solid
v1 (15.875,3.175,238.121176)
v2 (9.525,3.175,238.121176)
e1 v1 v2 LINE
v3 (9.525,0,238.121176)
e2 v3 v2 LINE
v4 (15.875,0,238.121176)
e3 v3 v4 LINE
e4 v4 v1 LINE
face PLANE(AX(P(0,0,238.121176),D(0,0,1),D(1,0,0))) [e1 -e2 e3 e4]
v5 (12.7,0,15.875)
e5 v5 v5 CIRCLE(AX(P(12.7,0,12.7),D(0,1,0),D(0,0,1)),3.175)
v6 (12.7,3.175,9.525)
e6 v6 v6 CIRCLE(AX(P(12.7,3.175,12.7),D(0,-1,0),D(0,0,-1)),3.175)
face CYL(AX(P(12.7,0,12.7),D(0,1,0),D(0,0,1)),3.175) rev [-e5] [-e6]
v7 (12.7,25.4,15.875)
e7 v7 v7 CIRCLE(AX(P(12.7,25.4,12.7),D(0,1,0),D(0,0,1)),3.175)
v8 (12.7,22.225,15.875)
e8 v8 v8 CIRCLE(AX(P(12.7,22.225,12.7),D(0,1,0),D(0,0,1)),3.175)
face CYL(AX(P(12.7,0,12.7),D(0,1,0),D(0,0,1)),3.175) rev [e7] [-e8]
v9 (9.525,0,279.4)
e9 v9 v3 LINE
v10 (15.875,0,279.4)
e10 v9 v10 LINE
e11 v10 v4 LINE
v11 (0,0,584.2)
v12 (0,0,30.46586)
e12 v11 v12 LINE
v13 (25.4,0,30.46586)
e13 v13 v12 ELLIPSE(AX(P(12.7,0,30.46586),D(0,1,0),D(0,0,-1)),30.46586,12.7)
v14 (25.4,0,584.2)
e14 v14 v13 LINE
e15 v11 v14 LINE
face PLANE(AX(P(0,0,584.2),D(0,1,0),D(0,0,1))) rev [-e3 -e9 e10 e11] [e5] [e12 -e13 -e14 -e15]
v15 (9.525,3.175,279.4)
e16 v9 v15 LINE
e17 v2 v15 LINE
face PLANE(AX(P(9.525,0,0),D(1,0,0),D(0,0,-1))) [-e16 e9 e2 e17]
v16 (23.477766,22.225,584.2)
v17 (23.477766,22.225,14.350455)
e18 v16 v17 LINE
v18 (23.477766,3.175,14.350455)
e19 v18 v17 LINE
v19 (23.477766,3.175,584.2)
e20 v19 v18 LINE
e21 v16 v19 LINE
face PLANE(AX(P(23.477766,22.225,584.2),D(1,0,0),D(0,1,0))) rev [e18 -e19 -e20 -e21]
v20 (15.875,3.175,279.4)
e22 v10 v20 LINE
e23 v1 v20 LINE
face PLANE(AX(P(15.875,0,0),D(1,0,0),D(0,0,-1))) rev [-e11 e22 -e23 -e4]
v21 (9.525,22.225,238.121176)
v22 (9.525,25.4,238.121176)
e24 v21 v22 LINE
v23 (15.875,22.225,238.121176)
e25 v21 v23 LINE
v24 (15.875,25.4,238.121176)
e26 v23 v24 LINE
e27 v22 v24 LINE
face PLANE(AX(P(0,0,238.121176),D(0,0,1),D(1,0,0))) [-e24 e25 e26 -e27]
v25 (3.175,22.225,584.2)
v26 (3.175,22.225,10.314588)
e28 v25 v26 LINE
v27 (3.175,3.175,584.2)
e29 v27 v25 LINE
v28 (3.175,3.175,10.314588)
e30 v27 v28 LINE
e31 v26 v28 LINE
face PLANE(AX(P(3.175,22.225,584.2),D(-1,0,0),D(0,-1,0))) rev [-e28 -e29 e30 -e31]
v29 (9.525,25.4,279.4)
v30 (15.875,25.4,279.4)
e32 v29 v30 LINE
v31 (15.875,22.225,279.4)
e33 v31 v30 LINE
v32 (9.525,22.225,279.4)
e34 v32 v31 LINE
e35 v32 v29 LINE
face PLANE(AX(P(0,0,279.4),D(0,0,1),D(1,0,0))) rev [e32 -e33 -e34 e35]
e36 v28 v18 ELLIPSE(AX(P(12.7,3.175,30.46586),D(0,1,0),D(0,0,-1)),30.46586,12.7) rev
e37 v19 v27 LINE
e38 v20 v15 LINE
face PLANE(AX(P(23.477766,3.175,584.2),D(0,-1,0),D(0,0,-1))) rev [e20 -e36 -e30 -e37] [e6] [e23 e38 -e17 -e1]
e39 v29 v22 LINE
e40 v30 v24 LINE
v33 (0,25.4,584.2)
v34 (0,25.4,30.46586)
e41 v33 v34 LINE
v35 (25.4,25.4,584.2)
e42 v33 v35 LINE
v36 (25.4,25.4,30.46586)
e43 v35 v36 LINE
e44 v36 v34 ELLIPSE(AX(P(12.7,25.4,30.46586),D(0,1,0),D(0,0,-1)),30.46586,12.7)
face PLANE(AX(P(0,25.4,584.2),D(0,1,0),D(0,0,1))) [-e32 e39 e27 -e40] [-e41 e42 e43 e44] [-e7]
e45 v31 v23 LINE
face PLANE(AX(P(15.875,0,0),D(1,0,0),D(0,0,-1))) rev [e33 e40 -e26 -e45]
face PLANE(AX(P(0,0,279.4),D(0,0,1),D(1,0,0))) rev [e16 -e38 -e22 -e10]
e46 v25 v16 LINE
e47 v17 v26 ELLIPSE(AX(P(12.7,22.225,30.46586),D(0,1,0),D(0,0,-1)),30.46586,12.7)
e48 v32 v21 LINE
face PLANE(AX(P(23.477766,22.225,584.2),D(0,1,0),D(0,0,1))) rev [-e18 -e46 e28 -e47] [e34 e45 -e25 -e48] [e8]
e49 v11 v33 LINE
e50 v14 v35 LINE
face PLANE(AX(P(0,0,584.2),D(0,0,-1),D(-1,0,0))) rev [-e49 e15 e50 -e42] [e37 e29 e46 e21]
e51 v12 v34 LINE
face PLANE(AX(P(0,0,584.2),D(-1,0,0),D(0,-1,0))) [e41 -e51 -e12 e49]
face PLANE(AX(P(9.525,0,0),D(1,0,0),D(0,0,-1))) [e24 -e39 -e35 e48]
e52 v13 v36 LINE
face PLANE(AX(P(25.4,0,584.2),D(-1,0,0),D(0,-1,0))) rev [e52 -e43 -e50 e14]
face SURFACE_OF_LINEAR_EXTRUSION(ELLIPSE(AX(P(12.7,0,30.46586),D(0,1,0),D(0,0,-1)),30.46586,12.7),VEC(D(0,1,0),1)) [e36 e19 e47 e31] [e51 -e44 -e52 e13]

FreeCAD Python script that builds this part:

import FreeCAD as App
import Part
import Sketcher
from FreeCAD import Vector
Q = App.Units.Quantity

doc = App.newDocument("Part")
body = doc.addObject("PartDesign::Body", "Body")

# Sketch on XY plane
sketch1 = body.newObject("Sketcher::SketchObject", "Sketch")
sketch1.AttachmentSupport = (doc.getObject("XY_Plane"), [""])
sketch1.MapMode = "FlatFace"
sketch1.addGeometry(Part.LineSegment(Vector(0, 25, 0), Vector(0, 0, 0)), False)
sketch1.addGeometry(Part.LineSegment(Vector(0, 0, 0), Vector(25, 0, 0)), False)
sketch1.addGeometry(Part.LineSegment(Vector(25, 0, 0), Vector(25, 25, 0)), False)
sketch1.addGeometry(Part.LineSegment(Vector(25, 25, 0), Vector(0, 25, 0)), False)
sketch1.addConstraint(Sketcher.Constraint("Coincident", 0, 2, 1, 1))
sketch1.addConstraint(Sketcher.Constraint("Coincident", 1, 2, 2, 1))
sketch1.addConstraint(Sketcher.Constraint("Coincident", 2, 2, 3, 1))
sketch1.addConstraint(Sketcher.Constraint("Coincident", 3, 2, 0, 1))
sketch1.addConstraint(Sketcher.Constraint("Vertical", 0))
sketch1.addConstraint(Sketcher.Constraint("Horizontal", 1))
sketch1.addConstraint(Sketcher.Constraint("Vertical", 2))
sketch1.addConstraint(Sketcher.Constraint("Horizontal", 3))
sketch1.addConstraint(Sketcher.Constraint("Coincident", 0, 2, -1, 1))
sketch1.addConstraint(Sketcher.Constraint("Equal", 3, 0))
sketch1.addConstraint(Sketcher.Constraint("DistanceX", 1, 1, 1, 2, Q("1 in")))
pad1 = body.newObject("PartDesign::Pad", "Pad")
pad1.Profile = sketch1
pad1.Length = Q("23 in")

# Sketch on XY plane
sketch2 = body.newObject("Sketcher::SketchObject", "Sketch001")
sketch2.AttachmentSupport = (doc.getObject("XY_Plane"), [""])
sketch2.MapMode = "FlatFace"
sketch2.addGeometry(Part.LineSegment(Vector(23, 22, 0), Vector(23, 3, 0)), False)
sketch2.addGeometry(Part.LineSegment(Vector(23, 3, 0), Vector(3, 3, 0)), False)
sketch2.addGeometry(Part.LineSegment(Vector(3, 3, 0), Vector(3, 22, 0)), False)
sketch2.addGeometry(Part.LineSegment(Vector(3, 22, 0), Vector(23, 22, 0)), False)
sketch2.addConstraint(Sketcher.Constraint("Coincident", 0, 2, 1, 1))
sketch2.addConstraint(Sketcher.Constraint("Coincident", 1, 2, 2, 1))
sketch2.addConstraint(Sketcher.Constraint("Coincident", 2, 2, 3, 1))
sketch2.addConstraint(Sketcher.Constraint("Coincident", 3, 2, 0, 1))
sketch2.addConstraint(Sketcher.Constraint("Vertical", 0))
sketch2.addConstraint(Sketcher.Constraint("Horizontal", 1))
sketch2.addConstraint(Sketcher.Constraint("Vertical", 2))
sketch2.addConstraint(Sketcher.Constraint("Horizontal", 3))
sketch2.addConstraint(Sketcher.Constraint("DistanceY", 0, 2, 0, 1, Q("0.75 in")))
sketch2.addConstraint(Sketcher.Constraint("DistanceY", -1, 1, 0, 2, Q("0.125 in")))
sketch2.addConstraint(Sketcher.Constraint("DistanceX", -1, 1, 1, 2, Q("0.125 in")))
sketch2.addConstraint(Sketcher.Constraint("DistanceX", 1, 2, 1, 1, 20.302766))
pocket1 = body.newObject("PartDesign::Pocket", "Pocket")
pocket1.Profile = sketch2
pocket1.Type = "ThroughAll"
pocket1.Reversed = True

# Sketch on XZ plane
sketch3 = body.newObject("Sketcher::SketchObject", "Sketch002")
sketch3.AttachmentSupport = (doc.getObject("XZ_Plane"), [""])
sketch3.MapMode = "FlatFace"
sketch3.AttachmentOffset = App.Placement(Vector(0, 0, -1 * 25.4), App.Rotation())
sketch3.addGeometry(Part.BSplineCurve([Vector(12.7, 0, 0), Vector(0, 0, 0), Vector(0, 30.46586, 0)], [3, 3], [6.283185307, 7.853981634], False, 2, [1, 0.707106781, 1], False), False)
sketch3.addGeometry(Part.LineSegment(Vector(12.7, 0, 0), Vector(0, 0, 0)), False)
sketch3.addGeometry(Part.LineSegment(Vector(0, 0, 0), Vector(0, 30.46586, 0)), False)
sketch3.addGeometry(Part.LineSegment(Vector(25.4, 0, 0), Vector(12.7, 0, 0)), False)
sketch3.addGeometry(Part.BSplineCurve([Vector(25.4, 30.46586, 0), Vector(25.4, 0, 0), Vector(12.7, 0, 0)], [3, 3], [4.71238898, 6.283185307], False, 2, [1, 0.707106781, 1], False), False)
sketch3.addGeometry(Part.LineSegment(Vector(25.4, 30.46586, 0), Vector(25.4, 0, 0)), False)
sketch3.addConstraint(Sketcher.Constraint("Block", 0))
sketch3.addConstraint(Sketcher.Constraint("Block", 4))
sketch3.addConstraint(Sketcher.Constraint("Coincident", 0, 1, 1, 1))
sketch3.addConstraint(Sketcher.Constraint("Coincident", 1, 2, 2, 1))
sketch3.addConstraint(Sketcher.Constraint("Coincident", 2, 2, 0, 2))
sketch3.addConstraint(Sketcher.Constraint("Coincident", 3, 2, 4, 2))
sketch3.addConstraint(Sketcher.Constraint("Coincident", 4, 1, 5, 1))
sketch3.addConstraint(Sketcher.Constraint("Coincident", 5, 2, 3, 1))
sketch3.addConstraint(Sketcher.Constraint("Horizontal", 1))
sketch3.addConstraint(Sketcher.Constraint("Vertical", 2))
sketch3.addConstraint(Sketcher.Constraint("Horizontal", 3))
sketch3.addConstraint(Sketcher.Constraint("Vertical", 5))
pocket2 = body.newObject("PartDesign::Pocket", "Pocket001")
pocket2.Profile = sketch3
pocket2.Type = "ThroughAll"
pocket2.Reversed = True

# Sketch on XZ plane
sketch4 = body.newObject("Sketcher::SketchObject", "Sketch003")
sketch4.AttachmentSupport = (doc.getObject("XZ_Plane"), [""])
sketch4.MapMode = "FlatFace"
sketch4.AttachmentOffset = App.Placement(Vector(0, 0, -1 * 25.4), App.Rotation())
sketch4.addGeometry(Part.Circle(Vector(12.7, 12.7, 0), Vector(0, 0, 1), 3.2), False)
sketch4.addConstraint(Sketcher.Constraint("Diameter", 0, Q("0.25 in")))
sketch4.addConstraint(Sketcher.Constraint("DistanceX", -1, 1, 0, 3, Q("0.5 in")))
sketch4.addConstraint(Sketcher.Constraint("DistanceY", -1, 1, 0, 3, Q("0.5 in")))
pocket3 = body.newObject("PartDesign::Pocket", "Pocket002")
pocket3.Profile = sketch4
pocket3.Type = "ThroughAll"
pocket3.Reversed = True

# Sketch on XZ plane
sketch5 = body.newObject("Sketcher::SketchObject", "Sketch004")
sketch5.AttachmentSupport = (doc.getObject("XZ_Plane"), [""])
sketch5.MapMode = "FlatFace"
sketch5.AttachmentOffset = App.Placement(Vector(0, 0, -1 * 25.4), App.Rotation())
sketch5.addGeometry(Part.LineSegment(Vector(10, 238, 0), Vector(10, 279, 0)), False)
sketch5.addGeometry(Part.LineSegment(Vector(10, 279, 0), Vector(16, 279, 0)), False)
sketch5.addGeometry(Part.LineSegment(Vector(16, 279, 0), Vector(16, 238, 0)), False)
sketch5.addGeometry(Part.LineSegment(Vector(16, 238, 0), Vector(10, 238, 0)), False)
sketch5.addConstraint(Sketcher.Constraint("Coincident", 0, 2, 1, 1))
sketch5.addConstraint(Sketcher.Constraint("Coincident", 1, 2, 2, 1))
sketch5.addConstraint(Sketcher.Constraint("Coincident", 2, 2, 3, 1))
sketch5.addConstraint(Sketcher.Constraint("Coincident", 3, 2, 0, 1))
sketch5.addConstraint(Sketcher.Constraint("Vertical", 0))
sketch5.addConstraint(Sketcher.Constraint("Horizontal", 1))
sketch5.addConstraint(Sketcher.Constraint("Vertical", 2))
sketch5.addConstraint(Sketcher.Constraint("Horizontal", 3))
sketch5.addConstraint(Sketcher.Constraint("DistanceY", -1, 1, 0, 2, Q("11 in")))
sketch5.addConstraint(Sketcher.Constraint("DistanceX", 1, 1, 1, 2, Q("0.25 in")))
sketch5.addConstraint(Sketcher.Constraint("DistanceX", -1, 1, 0, 2, Q("0.375 in")))
sketch5.addConstraint(Sketcher.Constraint("DistanceY", 0, 1, 0, 2, 41.278824))
pocket4 = body.newObject("PartDesign::Pocket", "Pocket003")
pocket4.Profile = sketch5
pocket4.Type = "ThroughAll"
pocket4.Reversed = True

doc.recompute()
